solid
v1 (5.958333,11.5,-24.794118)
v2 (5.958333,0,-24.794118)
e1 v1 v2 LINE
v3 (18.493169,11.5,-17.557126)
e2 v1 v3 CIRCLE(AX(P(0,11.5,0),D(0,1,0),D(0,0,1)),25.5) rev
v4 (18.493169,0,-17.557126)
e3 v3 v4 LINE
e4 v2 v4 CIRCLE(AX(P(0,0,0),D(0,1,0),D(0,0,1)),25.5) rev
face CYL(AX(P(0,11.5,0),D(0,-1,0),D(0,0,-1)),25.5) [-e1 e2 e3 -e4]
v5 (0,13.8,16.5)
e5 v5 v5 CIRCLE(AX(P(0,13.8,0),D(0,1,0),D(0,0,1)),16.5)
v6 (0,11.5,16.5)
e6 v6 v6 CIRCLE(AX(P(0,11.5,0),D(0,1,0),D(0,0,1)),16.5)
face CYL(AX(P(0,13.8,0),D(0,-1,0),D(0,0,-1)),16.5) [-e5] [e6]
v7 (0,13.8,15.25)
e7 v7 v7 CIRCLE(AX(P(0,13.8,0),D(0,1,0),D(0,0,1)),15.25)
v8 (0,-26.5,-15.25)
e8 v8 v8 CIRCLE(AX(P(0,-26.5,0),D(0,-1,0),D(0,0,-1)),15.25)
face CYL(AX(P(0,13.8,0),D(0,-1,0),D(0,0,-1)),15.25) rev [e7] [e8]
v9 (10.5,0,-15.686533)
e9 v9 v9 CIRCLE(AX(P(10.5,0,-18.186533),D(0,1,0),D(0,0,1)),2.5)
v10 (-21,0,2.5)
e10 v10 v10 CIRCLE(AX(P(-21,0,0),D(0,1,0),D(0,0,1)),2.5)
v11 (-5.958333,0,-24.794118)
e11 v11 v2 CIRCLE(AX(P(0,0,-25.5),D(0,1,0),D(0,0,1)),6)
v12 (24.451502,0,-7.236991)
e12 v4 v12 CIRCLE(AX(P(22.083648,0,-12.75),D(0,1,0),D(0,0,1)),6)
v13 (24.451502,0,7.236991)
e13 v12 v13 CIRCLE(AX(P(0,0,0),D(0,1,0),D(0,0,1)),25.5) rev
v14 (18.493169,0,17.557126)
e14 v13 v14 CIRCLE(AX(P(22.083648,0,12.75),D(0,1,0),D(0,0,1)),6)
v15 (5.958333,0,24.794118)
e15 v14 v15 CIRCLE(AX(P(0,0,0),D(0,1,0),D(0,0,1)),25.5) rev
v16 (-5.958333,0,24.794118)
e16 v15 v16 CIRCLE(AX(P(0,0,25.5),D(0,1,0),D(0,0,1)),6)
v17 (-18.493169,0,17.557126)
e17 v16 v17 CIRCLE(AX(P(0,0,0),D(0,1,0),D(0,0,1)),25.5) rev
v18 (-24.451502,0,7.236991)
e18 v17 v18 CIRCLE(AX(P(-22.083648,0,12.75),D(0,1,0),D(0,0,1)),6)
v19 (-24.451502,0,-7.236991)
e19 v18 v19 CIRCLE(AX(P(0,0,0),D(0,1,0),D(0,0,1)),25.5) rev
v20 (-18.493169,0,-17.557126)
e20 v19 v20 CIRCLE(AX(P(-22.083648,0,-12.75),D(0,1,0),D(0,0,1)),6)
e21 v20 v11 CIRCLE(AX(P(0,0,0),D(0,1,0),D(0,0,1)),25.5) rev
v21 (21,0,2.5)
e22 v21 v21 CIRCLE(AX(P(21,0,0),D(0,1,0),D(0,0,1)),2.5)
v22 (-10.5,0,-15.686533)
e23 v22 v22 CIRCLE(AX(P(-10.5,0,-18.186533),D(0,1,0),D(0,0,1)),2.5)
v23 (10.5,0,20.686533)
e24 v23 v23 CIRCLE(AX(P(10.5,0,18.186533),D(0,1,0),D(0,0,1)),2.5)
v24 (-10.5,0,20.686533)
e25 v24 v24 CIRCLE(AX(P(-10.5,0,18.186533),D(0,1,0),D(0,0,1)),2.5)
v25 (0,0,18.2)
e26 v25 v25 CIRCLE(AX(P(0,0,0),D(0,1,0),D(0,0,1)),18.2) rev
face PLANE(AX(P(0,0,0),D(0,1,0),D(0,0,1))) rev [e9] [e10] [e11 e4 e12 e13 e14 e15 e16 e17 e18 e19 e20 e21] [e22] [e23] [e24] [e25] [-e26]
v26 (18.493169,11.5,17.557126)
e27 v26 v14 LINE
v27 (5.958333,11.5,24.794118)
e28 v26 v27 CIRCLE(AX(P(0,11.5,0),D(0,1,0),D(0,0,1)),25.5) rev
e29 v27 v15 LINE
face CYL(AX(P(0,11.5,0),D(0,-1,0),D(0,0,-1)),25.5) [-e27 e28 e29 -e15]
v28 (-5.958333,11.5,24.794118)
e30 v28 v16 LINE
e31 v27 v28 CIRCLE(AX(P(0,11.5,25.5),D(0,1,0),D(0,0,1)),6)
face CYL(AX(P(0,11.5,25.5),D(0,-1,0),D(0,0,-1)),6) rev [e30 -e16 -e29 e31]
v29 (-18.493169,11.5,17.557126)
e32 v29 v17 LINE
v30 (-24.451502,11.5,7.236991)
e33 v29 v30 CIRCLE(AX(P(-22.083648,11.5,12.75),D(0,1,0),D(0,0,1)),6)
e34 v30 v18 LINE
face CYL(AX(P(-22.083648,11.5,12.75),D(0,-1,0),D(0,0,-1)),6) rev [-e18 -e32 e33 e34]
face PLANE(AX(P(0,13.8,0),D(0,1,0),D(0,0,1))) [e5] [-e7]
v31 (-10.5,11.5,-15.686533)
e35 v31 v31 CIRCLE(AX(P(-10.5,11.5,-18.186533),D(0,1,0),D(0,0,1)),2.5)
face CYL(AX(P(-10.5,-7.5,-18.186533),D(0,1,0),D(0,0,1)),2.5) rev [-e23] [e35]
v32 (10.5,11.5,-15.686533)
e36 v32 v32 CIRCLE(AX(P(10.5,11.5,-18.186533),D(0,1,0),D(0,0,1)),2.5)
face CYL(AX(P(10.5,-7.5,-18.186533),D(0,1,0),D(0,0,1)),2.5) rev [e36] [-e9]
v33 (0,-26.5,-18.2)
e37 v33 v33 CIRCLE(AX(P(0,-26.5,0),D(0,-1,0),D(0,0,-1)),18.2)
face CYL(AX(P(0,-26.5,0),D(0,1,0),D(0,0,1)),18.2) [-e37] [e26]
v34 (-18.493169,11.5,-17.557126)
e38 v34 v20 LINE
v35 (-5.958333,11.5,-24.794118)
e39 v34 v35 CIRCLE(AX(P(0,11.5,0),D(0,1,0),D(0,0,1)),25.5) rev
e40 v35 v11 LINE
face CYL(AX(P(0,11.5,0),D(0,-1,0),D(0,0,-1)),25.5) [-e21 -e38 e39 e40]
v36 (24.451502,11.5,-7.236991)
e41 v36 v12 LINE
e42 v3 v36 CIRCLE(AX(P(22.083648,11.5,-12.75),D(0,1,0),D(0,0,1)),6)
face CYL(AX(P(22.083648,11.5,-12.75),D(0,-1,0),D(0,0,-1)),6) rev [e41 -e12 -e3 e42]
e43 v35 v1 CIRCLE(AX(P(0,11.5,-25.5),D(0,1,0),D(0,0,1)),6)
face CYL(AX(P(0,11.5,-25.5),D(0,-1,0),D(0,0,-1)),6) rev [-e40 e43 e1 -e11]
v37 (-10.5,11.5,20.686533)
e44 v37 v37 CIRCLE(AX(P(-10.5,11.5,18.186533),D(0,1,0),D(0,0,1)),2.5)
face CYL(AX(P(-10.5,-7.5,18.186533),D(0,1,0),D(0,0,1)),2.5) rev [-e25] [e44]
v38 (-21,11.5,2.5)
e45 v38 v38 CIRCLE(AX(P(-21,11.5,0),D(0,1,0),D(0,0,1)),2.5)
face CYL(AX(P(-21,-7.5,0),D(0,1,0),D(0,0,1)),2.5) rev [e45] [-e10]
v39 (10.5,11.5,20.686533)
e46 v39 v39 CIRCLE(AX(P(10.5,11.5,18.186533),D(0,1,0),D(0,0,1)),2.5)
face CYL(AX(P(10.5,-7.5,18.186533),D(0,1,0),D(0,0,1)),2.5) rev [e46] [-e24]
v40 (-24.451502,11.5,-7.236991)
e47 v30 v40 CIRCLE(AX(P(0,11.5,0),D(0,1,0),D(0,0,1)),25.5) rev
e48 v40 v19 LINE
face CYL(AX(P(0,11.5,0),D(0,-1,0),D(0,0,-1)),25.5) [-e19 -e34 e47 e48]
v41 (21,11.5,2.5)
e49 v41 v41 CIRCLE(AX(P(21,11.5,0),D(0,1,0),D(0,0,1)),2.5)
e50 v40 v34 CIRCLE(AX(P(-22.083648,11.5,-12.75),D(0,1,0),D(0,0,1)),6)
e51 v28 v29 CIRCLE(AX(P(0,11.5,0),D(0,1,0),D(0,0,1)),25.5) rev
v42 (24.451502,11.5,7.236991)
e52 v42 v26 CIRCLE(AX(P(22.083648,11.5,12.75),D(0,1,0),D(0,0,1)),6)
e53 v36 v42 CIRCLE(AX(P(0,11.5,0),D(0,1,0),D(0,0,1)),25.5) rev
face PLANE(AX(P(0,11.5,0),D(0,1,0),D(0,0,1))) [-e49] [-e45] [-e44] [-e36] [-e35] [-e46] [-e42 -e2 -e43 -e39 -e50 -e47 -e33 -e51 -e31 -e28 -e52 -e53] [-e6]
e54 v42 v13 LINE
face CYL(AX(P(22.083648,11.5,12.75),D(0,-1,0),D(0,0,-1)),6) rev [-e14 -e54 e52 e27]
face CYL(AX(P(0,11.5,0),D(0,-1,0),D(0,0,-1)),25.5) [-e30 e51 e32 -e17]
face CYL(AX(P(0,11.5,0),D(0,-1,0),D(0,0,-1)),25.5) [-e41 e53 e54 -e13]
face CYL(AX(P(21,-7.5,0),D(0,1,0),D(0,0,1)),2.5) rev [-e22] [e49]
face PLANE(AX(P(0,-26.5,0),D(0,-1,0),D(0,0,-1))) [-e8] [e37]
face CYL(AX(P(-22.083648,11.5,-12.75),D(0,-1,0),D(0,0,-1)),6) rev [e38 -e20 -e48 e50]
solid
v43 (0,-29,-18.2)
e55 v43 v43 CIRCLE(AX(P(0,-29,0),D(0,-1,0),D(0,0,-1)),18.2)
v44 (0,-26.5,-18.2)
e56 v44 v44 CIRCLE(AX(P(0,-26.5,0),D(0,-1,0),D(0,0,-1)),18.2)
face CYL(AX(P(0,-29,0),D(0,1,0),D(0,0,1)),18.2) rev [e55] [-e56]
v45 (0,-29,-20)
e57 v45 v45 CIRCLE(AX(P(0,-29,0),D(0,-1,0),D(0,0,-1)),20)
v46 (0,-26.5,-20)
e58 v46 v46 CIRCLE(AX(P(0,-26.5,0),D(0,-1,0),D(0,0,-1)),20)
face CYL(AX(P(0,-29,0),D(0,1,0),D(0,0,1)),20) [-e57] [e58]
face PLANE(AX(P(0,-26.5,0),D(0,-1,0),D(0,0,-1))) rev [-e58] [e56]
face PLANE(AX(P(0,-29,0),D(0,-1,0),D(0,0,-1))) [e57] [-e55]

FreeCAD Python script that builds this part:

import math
import FreeCAD as App
import Part
import Sketcher
Q = App.Units.Quantity

doc = App.newDocument("Part")
body = doc.addObject("PartDesign::Body", "Body")

# Sketch on XZ plane
sketch1 = doc.addObject("Sketcher::SketchObject", "Sketch")
body.addObject(sketch1)
sketch1.AttachmentSupport = (doc.XZ_Plane, [""])
sketch1.MapMode = "FlatFace"
sketch1.addGeometry(Part.ArcOfCircle(Part.Circle(App.Vector(0, -25.5, 0), App.Vector(0, 0, 1), 6), math.radians(6.756327), math.radians(173.243673)), False)
sketch1.addGeometry(Part.ArcOfCircle(Part.Circle(App.Vector(0, 0, 0), App.Vector(0, 0, 1), 25.5), math.radians(-136.487346), math.radians(-103.512654)), False)
sketch1.addGeometry(Part.ArcOfCircle(Part.Circle(App.Vector(-22.083648, -12.75, 0), App.Vector(0, 0, 1), 6), math.radians(-53.243673), math.radians(113.243673)), False)
sketch1.addGeometry(Part.ArcOfCircle(Part.Circle(App.Vector(0, 0, 0), App.Vector(0, 0, 1), 25.5), math.radians(163.512654), math.radians(196.487346)), False)
sketch1.addGeometry(Part.ArcOfCircle(Part.Circle(App.Vector(-22.083648, 12.75, 0), App.Vector(0, 0, 1), 6), math.radians(-113.243673), math.radians(53.243673)), False)
sketch1.addGeometry(Part.ArcOfCircle(Part.Circle(App.Vector(0, 0, 0), App.Vector(0, 0, 1), 25.5), math.radians(103.512654), math.radians(136.487346)), False)
sketch1.addGeometry(Part.ArcOfCircle(Part.Circle(App.Vector(0, 25.5, 0), App.Vector(0, 0, 1), 6), math.radians(-173.243673), math.radians(-6.756327)), False)
sketch1.addGeometry(Part.ArcOfCircle(Part.Circle(App.Vector(0, 0, 0), App.Vector(0, 0, 1), 25.5), math.radians(43.512654), math.radians(76.487346)), False)
sketch1.addGeometry(Part.ArcOfCircle(Part.Circle(App.Vector(22.083648, 12.75, 0), App.Vector(0, 0, 1), 6), math.radians(126.756327), math.radians(293.243673)), False)
sketch1.addGeometry(Part.ArcOfCircle(Part.Circle(App.Vector(0, 0, 0), App.Vector(0, 0, 1), 25.5), math.radians(-16.487346), math.radians(16.487346)), False)
sketch1.addGeometry(Part.ArcOfCircle(Part.Circle(App.Vector(22.083648, -12.75, 0), App.Vector(0, 0, 1), 6), math.radians(66.756327), math.radians(233.243673)), False)
sketch1.addGeometry(Part.ArcOfCircle(Part.Circle(App.Vector(0, 0, 0), App.Vector(0, 0, 1), 25.5), math.radians(-76.487346), math.radians(-43.512654)), False)
sketch1.addConstraint(Sketcher.Constraint("Coincident", 0, 2, 1, 2))
sketch1.addConstraint(Sketcher.Constraint("Coincident", 1, 1, 2, 1))
sketch1.addConstraint(Sketcher.Constraint("Coincident", 2, 2, 3, 2))
sketch1.addConstraint(Sketcher.Constraint("Coincident", 3, 1, 4, 1))
sketch1.addConstraint(Sketcher.Constraint("Coincident", 4, 2, 5, 2))
sketch1.addConstraint(Sketcher.Constraint("Coincident", 5, 1, 6, 1))
sketch1.addConstraint(Sketcher.Constraint("Coincident", 6, 2, 7, 2))
sketch1.addConstraint(Sketcher.Constraint("Coincident", 7, 1, 8, 1))
sketch1.addConstraint(Sketcher.Constraint("Coincident", 8, 2, 9, 2))
sketch1.addConstraint(Sketcher.Constraint("Coincident", 9, 1, 10, 1))
sketch1.addConstraint(Sketcher.Constraint("Coincident", 10, 2, 11, 2))
sketch1.addConstraint(Sketcher.Constraint("Coincident", 11, 1, 0, 1))
sketch1.addConstraint(Sketcher.Constraint("Coincident", 1, 3, -1, 1))
sketch1.addConstraint(Sketcher.Constraint("Coincident", 3, 3, -1, 1))
sketch1.addConstraint(Sketcher.Constraint("Coincident", 5, 3, -1, 1))
sketch1.addConstraint(Sketcher.Constraint("Coincident", 7, 3, -1, 1))
sketch1.addConstraint(Sketcher.Constraint("Coincident", 9, 3, -1, 1))
sketch1.addConstraint(Sketcher.Constraint("Coincident", 11, 3, -1, 1))
sketch1.addConstraint(Sketcher.Constraint("Equal", 0, 2))
sketch1.addConstraint(Sketcher.Constraint("Equal", 1, 3))
sketch1.addConstraint(Sketcher.Constraint("Equal", 2, 4))
sketch1.addConstraint(Sketcher.Constraint("Equal", 3, 5))
sketch1.addConstraint(Sketcher.Constraint("Equal", 4, 6))
sketch1.addConstraint(Sketcher.Constraint("Equal", 5, 7))
sketch1.addConstraint(Sketcher.Constraint("Equal", 6, 8))
sketch1.addConstraint(Sketcher.Constraint("Equal", 7, 9))
sketch1.addConstraint(Sketcher.Constraint("Equal", 8, 10))
sketch1.addConstraint(Sketcher.Constraint("Equal", 9, 11))
sketch1.addConstraint(Sketcher.Constraint("Symmetric", 0, 3, 6, 3, -1, 1))
sketch1.addConstraint(Sketcher.Constraint("Symmetric", 2, 3, 8, 3, -1, 1))
sketch1.addConstraint(Sketcher.Constraint("Symmetric", 4, 3, 10, 3, -1, 1))
sketch1.addConstraint(Sketcher.Constraint("Symmetric", 4, 3, 8, 3, -2))
sketch1.addConstraint(Sketcher.Constraint("PointOnObject", 0, 3, -2))
sketch1.addConstraint(Sketcher.Constraint("Radius", 0, Q("6 mm")))
sketch1.addConstraint(Sketcher.Constraint("Radius", 1, Q("25.5 mm")))
sketch1.addConstraint(Sketcher.Constraint("DistanceY", 0, 3, -1, 1, Q("25.5 mm")))
sketch1.addConstraint(Sketcher.Constraint("DistanceY", 2, 3, 4, 3, Q("25.5 mm")))
sketch1.addConstraint(Sketcher.Constraint("DistanceX", 1, 1, -1, 1, Q("18.493169 mm")))
pad1 = doc.addObject("PartDesign::Pad", "Pad")
body.addObject(pad1)
pad1.Profile = sketch1
pad1.Length = 11.5
pad1.Reversed = True

# Sketch on XZ plane
sketch2 = doc.addObject("Sketcher::SketchObject", "Sketch001")
body.addObject(sketch2)
sketch2.AttachmentSupport = (doc.XZ_Plane, [""])
sketch2.MapMode = "FlatFace"
sketch2.AttachmentOffset = App.Placement(App.Vector(0, 0, -11.5), App.Rotation())
sketch2.addGeometry(Part.Circle(App.Vector(0, 0, 0), App.Vector(0, 0, 1), 16.5), False)
sketch2.addGeometry(Part.Circle(App.Vector(0, 0, 0), App.Vector(0, 0, 1), 15.25), False)
sketch2.addConstraint(Sketcher.Constraint("Coincident", 0, 3, -1, 1))
sketch2.addConstraint(Sketcher.Constraint("Coincident", 1, 3, -1, 1))
sketch2.addConstraint(Sketcher.Constraint("Diameter", 0, Q("33 mm")))
sketch2.addConstraint(Sketcher.Constraint("Diameter", 1, Q("30.5 mm")))
pad2 = doc.addObject("PartDesign::Pad", "Pad001")
body.addObject(pad2)
pad2.Profile = sketch2
pad2.Length = 2.3
pad2.Reversed = True

# Sketch on XZ plane
sketch3 = doc.addObject("Sketcher::SketchObject", "Sketch002")
body.addObject(sketch3)
sketch3.AttachmentSupport = (doc.XZ_Plane, [""])
sketch3.MapMode = "FlatFace"
sketch3.AttachmentOffset = App.Placement(App.Vector(0, 0, -11.5), App.Rotation())
sketch3.addGeometry(Part.Circle(App.Vector(0, 0, 0), App.Vector(0, 0, 1), 15.25), False)
sketch3.addConstraint(Sketcher.Constraint("Coincident", 0, 3, -1, 1))
sketch3.addConstraint(Sketcher.Constraint("Diameter", 0, Q("30.5 mm")))
pocket1 = doc.addObject("PartDesign::Pocket", "Pocket")
body.addObject(pocket1)
pocket1.Profile = sketch3
pocket1.Type = "ThroughAll"
pocket1.Reversed = True

# Sketch on XZ plane
sketch4 = doc.addObject("Sketcher::SketchObject", "Sketch003")
body.addObject(sketch4)
sketch4.AttachmentSupport = (doc.XZ_Plane, [""])
sketch4.MapMode = "FlatFace"
sketch4.addGeometry(Part.Circle(App.Vector(0, 0, 0), App.Vector(0, 0, 1), 18.2), False)
sketch4.addGeometry(Part.Circle(App.Vector(0, 0, 0), App.Vector(0, 0, 1), 15.25), False)
sketch4.addConstraint(Sketcher.Constraint("Coincident", 0, 3, -1, 1))
sketch4.addConstraint(Sketcher.Constraint("Coincident", 1, 3, -1, 1))
sketch4.addConstraint(Sketcher.Constraint("Diameter", 0, Q("36.4 mm")))
sketch4.addConstraint(Sketcher.Constraint("Diameter", 1, Q("30.5 mm")))
pad3 = doc.addObject("PartDesign::Pad", "Pad002")
body.addObject(pad3)
pad3.Profile = sketch4
pad3.Length = 26.5

# Sketch on XZ plane
sketch5 = doc.addObject("Sketcher::SketchObject", "Sketch004")
body.addObject(sketch5)
sketch5.AttachmentSupport = (doc.XZ_Plane, [""])
sketch5.MapMode = "FlatFace"
sketch5.AttachmentOffset = App.Placement(App.Vector(0, 0, -11.5), App.Rotation())
sketch5.addGeometry(Part.Circle(App.Vector(21, 0, 0), App.Vector(0, 0, 1), 2.5), False)
sketch5.addGeometry(Part.Circle(App.Vector(10.5, 18.186533, 0), App.Vector(0, 0, 1), 2.5), False)
sketch5.addGeometry(Part.Circle(App.Vector(-10.5, 18.186533, 0), App.Vector(0, 0, 1), 2.5), False)
sketch5.addGeometry(Part.Circle(App.Vector(-21, 0, 0), App.Vector(0, 0, 1), 2.5), False)
sketch5.addGeometry(Part.Circle(App.Vector(-10.5, -18.186533, 0), App.Vector(0, 0, 1), 2.5), False)
sketch5.addGeometry(Part.Circle(App.Vector(10.5, -18.186533, 0), App.Vector(0, 0, 1), 2.5), False)
sketch5.addConstraint(Sketcher.Constraint("Equal", 0, 1))
sketch5.addConstraint(Sketcher.Constraint("Equal", 1, 2))
sketch5.addConstraint(Sketcher.Constraint("Equal", 2, 3))
sketch5.addConstraint(Sketcher.Constraint("Equal", 3, 4))
sketch5.addConstraint(Sketcher.Constraint("Equal", 4, 5))
sketch5.addConstraint(Sketcher.Constraint("Symmetric", 0, 3, 3, 3, -1, 1))
sketch5.addConstraint(Sketcher.Constraint("Symmetric", 1, 3, 4, 3, -1, 1))
sketch5.addConstraint(Sketcher.Constraint("Symmetric", 2, 3, 5, 3, -1, 1))
sketch5.addConstraint(Sketcher.Constraint("Symmetric", 1, 3, 2, 3, -2))
sketch5.addConstraint(Sketcher.Constraint("PointOnObject", 0, 3, -1))
sketch5.addConstraint(Sketcher.Constraint("Diameter", 0, Q("5 mm")))
sketch5.addConstraint(Sketcher.Constraint("DistanceX", -1, 1, 0, 3, Q("21 mm")))
sketch5.addConstraint(Sketcher.Constraint("DistanceX", 2, 3, 1, 3, Q("21 mm")))
sketch5.addConstraint(Sketcher.Constraint("DistanceY", -1, 1, 1, 3, Q("18.186533 mm")))
pocket2 = doc.addObject("PartDesign::Pocket", "Pocket001")
body.addObject(pocket2)
pocket2.Profile = sketch5
pocket2.Length = 19
pocket2.Reversed = True
body2 = doc.addObject("PartDesign::Body", "Body001")

# Sketch on XZ plane
sketch6 = doc.addObject("Sketcher::SketchObject", "Sketch005")
body2.addObject(sketch6)
sketch6.AttachmentSupport = (doc.getObject("XZ_Plane001"), [""])
sketch6.MapMode = "FlatFace"
sketch6.AttachmentOffset = App.Placement(App.Vector(0, 0, 26.5), App.Rotation())
sketch6.addGeometry(Part.Circle(App.Vector(0, 0, 0), App.Vector(0, 0, 1), 20), False)
sketch6.addGeometry(Part.Circle(App.Vector(0, 0, 0), App.Vector(0, 0, 1), 18.2), False)
sketch6.addConstraint(Sketcher.Constraint("Coincident", 0, 3, -1, 1))
sketch6.addConstraint(Sketcher.Constraint("Coincident", 1, 3, -1, 1))
sketch6.addConstraint(Sketcher.Constraint("Diameter", 0, Q("40 mm")))
sketch6.addConstraint(Sketcher.Constraint("Diameter", 1, Q("36.4 mm")))
pad4 = doc.addObject("PartDesign::Pad", "Pad003")
body2.addObject(pad4)
pad4.Profile = sketch6
pad4.Length = 2.5

doc.recompute()
